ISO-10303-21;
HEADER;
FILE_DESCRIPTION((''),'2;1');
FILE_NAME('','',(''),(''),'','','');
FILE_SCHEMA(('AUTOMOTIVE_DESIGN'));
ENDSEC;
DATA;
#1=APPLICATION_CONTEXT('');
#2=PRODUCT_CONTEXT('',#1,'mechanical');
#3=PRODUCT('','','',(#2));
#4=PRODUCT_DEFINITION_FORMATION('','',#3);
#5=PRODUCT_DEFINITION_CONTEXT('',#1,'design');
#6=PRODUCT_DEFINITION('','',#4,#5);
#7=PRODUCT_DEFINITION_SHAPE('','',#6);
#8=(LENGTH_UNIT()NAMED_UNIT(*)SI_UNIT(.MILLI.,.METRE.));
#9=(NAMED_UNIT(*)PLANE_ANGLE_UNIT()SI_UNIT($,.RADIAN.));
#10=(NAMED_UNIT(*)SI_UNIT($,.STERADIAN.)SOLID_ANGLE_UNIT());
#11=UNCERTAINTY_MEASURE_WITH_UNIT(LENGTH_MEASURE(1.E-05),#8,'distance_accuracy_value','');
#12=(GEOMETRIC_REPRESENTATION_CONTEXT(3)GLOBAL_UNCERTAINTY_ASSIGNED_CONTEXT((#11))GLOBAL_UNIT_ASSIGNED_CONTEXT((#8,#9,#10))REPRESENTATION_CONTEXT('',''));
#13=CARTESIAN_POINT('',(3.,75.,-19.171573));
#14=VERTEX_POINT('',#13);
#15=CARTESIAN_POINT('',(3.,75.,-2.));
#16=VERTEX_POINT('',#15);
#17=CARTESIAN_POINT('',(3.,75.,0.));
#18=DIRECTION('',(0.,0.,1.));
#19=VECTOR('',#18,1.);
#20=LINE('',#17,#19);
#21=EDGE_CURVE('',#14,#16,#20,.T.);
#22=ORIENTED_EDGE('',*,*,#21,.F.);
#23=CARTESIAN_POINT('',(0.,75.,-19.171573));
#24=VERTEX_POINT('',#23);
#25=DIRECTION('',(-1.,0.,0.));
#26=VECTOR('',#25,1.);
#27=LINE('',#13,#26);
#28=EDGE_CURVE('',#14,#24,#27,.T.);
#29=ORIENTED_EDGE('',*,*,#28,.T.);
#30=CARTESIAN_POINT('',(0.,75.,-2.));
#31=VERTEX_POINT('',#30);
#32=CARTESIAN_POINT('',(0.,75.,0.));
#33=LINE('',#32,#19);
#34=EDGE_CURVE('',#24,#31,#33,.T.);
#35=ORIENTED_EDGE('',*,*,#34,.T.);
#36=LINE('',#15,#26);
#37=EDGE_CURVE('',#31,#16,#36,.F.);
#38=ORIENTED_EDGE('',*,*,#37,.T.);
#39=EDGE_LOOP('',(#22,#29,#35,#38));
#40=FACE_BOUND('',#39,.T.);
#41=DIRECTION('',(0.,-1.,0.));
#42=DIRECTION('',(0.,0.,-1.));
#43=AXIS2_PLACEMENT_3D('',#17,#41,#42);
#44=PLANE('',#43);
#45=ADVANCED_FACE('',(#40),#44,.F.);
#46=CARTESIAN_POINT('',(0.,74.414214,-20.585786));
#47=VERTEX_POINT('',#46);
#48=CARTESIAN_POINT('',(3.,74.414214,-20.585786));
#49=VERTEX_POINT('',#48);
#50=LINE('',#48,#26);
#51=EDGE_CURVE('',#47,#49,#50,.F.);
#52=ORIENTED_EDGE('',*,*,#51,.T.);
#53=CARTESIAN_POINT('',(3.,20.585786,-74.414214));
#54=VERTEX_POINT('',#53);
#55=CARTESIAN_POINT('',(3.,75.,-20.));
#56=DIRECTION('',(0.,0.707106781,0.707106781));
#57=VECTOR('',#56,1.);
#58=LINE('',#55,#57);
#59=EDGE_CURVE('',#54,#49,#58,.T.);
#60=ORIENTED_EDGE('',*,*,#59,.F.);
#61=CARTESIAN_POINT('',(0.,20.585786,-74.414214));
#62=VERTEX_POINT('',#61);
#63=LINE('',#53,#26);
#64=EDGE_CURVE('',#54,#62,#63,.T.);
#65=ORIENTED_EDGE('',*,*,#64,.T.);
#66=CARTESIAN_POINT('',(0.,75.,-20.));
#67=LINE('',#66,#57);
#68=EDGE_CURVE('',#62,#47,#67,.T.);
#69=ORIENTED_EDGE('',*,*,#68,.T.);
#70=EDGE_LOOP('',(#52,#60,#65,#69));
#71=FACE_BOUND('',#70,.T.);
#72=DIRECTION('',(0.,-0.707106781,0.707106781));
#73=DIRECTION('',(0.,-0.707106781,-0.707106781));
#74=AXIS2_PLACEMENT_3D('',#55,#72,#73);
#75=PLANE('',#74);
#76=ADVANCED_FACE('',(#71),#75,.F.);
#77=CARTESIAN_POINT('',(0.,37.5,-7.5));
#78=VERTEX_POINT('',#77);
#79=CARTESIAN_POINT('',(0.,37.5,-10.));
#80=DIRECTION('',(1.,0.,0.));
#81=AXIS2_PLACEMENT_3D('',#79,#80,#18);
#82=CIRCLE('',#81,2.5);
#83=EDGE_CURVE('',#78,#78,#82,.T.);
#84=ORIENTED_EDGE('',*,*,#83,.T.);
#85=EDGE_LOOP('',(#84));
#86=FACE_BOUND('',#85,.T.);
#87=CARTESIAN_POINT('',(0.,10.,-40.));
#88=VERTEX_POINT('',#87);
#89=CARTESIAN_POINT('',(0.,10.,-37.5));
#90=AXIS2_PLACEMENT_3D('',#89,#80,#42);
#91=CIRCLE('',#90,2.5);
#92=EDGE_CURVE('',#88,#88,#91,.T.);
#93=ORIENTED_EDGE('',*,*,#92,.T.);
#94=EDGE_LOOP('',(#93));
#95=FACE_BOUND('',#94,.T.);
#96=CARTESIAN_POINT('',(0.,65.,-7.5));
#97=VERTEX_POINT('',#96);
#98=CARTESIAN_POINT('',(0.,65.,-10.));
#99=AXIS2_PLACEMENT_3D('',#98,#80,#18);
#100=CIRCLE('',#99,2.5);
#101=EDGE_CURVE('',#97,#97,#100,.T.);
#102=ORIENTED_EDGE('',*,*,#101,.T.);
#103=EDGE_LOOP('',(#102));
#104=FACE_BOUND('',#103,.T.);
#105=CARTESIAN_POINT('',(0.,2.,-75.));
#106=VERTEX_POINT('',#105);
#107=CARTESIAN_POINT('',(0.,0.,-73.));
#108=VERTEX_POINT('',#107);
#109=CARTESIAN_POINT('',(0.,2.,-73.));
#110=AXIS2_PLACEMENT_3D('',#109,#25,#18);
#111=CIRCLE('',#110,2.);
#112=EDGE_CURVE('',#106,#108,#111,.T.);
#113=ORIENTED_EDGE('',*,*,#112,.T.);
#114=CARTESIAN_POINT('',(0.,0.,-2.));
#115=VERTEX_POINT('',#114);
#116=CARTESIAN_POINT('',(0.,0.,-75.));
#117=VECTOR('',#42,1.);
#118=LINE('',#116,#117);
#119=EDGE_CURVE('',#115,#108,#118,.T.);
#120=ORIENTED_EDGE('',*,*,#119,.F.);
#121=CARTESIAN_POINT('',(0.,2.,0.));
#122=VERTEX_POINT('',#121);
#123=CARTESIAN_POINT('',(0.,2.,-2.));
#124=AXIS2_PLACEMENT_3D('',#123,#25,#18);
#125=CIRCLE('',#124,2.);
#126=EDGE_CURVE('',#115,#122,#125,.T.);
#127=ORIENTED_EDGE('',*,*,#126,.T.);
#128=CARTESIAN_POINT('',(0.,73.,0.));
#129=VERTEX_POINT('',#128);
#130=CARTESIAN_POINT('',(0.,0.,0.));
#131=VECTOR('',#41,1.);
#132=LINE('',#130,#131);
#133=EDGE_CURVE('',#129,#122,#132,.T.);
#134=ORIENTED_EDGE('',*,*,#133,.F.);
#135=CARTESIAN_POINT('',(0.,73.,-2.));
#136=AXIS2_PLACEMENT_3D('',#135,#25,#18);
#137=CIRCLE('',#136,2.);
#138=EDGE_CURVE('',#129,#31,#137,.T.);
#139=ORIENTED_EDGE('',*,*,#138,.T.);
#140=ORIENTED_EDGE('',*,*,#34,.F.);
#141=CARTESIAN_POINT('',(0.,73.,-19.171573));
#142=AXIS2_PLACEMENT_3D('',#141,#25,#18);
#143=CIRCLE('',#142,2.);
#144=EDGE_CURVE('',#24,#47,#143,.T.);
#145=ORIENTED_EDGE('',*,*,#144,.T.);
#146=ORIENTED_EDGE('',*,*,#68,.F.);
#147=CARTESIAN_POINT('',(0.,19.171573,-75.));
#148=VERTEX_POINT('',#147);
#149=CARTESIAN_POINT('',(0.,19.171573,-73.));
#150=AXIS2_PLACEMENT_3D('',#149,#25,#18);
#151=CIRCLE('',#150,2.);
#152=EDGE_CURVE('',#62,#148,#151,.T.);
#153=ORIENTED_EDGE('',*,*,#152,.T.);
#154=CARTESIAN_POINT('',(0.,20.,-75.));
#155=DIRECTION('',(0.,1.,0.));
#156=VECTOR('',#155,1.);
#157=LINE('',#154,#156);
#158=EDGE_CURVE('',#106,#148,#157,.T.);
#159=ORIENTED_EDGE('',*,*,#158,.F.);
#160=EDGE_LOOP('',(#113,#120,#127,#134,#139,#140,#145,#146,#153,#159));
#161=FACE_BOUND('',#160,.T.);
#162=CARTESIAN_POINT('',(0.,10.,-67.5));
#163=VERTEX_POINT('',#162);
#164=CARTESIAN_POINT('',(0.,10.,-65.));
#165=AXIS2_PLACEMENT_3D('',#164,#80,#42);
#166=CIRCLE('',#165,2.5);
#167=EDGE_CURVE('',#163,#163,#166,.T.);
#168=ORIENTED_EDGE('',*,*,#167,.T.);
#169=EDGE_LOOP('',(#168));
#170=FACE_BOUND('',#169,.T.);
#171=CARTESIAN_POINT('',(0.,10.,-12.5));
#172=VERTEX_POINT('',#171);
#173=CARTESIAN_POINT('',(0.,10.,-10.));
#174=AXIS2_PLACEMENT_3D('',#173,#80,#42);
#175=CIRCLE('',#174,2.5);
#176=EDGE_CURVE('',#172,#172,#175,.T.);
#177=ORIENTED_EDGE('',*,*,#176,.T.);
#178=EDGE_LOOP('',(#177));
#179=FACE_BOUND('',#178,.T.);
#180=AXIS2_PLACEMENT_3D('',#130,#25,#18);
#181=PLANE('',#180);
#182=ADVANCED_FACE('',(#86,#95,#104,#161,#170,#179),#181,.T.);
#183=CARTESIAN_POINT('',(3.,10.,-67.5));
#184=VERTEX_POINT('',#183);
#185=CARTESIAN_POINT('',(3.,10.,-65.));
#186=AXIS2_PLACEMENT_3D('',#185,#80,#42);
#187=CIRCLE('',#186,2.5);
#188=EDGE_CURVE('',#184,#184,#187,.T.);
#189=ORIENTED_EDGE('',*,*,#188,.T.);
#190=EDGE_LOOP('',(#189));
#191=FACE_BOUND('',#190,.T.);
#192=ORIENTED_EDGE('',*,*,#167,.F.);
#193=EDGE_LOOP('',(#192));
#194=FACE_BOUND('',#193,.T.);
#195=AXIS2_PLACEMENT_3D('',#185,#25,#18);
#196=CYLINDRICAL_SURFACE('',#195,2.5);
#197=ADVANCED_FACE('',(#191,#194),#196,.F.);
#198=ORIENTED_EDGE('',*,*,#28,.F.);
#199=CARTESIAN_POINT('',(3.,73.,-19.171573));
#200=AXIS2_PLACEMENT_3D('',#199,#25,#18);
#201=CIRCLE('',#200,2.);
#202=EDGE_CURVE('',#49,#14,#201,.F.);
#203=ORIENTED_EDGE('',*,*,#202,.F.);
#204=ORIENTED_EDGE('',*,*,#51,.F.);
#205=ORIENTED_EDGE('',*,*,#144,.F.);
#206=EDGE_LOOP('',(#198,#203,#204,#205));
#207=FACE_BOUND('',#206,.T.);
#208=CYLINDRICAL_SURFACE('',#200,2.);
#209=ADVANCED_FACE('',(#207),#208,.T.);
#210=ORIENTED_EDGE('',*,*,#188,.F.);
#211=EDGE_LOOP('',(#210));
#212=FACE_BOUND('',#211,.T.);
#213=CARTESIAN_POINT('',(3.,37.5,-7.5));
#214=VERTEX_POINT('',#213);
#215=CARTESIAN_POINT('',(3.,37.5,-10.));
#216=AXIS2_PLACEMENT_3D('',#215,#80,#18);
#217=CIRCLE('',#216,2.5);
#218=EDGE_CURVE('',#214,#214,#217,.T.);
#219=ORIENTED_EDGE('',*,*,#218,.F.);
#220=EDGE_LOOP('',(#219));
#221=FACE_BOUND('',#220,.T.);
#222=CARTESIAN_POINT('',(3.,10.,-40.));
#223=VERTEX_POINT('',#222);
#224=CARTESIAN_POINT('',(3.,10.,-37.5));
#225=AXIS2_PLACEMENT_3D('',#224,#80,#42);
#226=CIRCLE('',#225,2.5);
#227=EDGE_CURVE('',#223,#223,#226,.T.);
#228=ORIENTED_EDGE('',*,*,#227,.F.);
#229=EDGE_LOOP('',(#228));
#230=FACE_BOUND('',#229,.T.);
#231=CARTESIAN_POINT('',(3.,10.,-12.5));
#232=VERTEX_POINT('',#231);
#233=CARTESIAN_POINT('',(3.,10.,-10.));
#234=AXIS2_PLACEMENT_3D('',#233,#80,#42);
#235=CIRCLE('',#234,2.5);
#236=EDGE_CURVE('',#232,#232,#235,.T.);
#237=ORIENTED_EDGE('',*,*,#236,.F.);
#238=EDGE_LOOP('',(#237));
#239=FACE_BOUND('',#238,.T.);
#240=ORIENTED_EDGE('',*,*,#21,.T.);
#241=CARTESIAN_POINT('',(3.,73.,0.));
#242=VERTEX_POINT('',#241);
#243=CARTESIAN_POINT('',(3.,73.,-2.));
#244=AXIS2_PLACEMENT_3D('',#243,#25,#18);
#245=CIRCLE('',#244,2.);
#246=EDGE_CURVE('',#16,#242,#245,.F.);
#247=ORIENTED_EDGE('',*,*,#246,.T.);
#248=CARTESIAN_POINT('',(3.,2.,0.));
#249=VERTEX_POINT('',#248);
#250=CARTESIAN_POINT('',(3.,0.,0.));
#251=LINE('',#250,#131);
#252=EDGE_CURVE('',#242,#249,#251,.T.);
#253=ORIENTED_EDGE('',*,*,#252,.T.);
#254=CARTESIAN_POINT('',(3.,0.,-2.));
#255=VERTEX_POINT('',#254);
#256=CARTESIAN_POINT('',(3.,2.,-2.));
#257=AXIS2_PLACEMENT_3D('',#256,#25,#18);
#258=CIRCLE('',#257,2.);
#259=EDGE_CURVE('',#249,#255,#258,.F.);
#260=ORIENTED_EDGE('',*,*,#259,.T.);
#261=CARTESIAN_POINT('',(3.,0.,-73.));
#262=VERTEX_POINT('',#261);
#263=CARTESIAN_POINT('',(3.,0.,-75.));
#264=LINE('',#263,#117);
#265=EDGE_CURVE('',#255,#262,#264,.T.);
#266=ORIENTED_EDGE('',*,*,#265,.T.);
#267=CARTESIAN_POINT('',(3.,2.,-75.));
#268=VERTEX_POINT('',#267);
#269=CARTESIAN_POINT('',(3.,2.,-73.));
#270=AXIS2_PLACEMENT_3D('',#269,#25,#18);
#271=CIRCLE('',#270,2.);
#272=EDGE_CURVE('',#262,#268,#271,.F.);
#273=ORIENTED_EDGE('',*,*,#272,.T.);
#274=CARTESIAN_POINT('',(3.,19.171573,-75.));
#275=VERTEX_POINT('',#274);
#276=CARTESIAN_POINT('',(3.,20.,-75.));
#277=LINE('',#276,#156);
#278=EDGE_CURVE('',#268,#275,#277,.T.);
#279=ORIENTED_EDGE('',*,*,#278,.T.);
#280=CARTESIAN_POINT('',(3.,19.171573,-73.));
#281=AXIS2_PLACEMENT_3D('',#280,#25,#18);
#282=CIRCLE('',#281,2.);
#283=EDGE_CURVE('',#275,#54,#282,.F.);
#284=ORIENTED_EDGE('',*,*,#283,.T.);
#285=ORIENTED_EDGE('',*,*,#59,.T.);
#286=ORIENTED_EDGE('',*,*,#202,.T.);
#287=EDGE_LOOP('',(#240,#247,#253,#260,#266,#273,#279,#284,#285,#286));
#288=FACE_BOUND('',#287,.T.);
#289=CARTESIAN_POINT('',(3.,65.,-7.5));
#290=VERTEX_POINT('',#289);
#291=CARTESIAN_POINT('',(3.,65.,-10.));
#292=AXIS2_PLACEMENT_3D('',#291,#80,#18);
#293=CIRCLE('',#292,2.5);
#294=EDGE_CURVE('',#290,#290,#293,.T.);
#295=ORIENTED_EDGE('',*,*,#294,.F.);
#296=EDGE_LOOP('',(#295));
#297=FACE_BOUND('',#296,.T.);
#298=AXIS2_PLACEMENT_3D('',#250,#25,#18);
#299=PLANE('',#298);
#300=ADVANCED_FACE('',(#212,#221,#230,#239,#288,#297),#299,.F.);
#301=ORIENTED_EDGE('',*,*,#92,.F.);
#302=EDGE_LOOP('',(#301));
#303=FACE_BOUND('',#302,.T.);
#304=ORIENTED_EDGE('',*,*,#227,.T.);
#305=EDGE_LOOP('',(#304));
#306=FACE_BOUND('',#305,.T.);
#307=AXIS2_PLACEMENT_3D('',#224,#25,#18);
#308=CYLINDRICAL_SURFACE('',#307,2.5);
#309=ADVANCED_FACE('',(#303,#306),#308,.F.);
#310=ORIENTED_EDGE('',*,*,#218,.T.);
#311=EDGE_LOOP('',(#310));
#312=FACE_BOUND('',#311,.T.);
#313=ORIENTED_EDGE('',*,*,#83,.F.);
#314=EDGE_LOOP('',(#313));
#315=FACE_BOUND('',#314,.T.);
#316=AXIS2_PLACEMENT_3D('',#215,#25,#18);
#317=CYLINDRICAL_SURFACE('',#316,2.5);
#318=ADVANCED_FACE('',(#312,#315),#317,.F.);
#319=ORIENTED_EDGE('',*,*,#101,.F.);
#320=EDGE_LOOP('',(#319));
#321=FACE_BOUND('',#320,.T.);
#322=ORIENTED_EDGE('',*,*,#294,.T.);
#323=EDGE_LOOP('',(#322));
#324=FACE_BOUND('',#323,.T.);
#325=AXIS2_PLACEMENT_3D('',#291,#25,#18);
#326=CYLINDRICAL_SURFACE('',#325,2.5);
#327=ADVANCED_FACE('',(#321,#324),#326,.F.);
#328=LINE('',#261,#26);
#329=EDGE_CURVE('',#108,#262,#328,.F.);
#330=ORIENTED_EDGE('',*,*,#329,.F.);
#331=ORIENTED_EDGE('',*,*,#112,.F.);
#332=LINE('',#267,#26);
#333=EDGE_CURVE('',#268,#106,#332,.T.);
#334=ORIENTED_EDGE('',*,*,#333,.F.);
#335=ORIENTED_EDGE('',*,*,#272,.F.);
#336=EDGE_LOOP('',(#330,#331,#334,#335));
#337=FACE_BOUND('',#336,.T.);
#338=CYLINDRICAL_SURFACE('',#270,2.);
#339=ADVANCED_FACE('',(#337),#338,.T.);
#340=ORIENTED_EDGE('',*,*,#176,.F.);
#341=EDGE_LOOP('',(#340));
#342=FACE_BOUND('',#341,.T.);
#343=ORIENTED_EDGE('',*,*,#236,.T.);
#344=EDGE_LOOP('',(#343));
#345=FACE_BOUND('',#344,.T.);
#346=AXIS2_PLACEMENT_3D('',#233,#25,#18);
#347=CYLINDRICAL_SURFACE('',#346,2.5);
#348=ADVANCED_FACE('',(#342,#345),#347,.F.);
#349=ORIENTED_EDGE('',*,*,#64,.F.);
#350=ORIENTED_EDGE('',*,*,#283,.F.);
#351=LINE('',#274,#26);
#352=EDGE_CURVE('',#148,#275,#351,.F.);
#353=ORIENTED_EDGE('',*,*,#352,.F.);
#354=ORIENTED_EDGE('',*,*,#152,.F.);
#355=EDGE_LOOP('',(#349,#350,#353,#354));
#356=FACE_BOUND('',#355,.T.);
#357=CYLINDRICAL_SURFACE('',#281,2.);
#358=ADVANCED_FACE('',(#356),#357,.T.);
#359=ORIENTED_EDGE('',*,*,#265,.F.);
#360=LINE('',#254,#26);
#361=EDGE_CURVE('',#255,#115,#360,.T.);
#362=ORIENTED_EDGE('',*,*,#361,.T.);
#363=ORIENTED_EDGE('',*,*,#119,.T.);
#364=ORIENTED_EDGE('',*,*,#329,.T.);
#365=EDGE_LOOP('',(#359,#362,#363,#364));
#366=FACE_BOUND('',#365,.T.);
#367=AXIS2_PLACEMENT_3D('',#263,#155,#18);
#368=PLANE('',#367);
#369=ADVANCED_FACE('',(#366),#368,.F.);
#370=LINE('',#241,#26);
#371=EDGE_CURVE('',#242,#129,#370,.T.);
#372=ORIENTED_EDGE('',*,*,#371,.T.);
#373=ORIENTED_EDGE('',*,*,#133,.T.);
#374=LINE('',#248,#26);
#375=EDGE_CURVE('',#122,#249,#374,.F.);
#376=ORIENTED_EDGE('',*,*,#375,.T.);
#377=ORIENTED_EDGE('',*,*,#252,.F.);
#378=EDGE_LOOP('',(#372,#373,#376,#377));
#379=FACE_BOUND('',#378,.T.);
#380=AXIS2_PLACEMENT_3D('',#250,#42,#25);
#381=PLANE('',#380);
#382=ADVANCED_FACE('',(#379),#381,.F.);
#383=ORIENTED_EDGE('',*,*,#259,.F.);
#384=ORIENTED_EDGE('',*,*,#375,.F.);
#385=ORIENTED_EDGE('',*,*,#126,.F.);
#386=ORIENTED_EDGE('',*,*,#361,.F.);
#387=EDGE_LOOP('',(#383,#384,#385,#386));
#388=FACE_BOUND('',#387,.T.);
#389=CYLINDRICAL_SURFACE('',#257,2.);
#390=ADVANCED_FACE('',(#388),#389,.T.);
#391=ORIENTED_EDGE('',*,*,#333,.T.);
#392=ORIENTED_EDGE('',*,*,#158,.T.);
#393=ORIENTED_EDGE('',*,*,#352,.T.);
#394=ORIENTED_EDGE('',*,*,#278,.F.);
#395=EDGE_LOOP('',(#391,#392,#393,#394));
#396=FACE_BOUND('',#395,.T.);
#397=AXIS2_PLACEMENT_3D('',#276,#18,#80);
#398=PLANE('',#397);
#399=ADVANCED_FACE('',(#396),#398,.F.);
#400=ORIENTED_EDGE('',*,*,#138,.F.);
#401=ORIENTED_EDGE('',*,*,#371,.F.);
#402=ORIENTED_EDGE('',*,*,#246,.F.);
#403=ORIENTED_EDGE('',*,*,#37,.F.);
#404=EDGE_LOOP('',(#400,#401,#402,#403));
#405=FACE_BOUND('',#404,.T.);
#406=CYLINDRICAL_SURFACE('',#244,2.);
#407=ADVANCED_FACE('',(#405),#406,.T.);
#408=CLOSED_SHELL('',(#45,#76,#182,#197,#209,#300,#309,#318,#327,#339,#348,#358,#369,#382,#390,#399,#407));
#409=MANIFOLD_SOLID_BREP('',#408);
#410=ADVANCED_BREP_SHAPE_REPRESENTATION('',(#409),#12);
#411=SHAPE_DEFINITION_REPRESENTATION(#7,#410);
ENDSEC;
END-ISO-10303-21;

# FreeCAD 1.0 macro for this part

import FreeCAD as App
import Part
import Sketcher
Q = App.Units.Quantity


def edges_at(feature, points):
    """Names of the edges that pass closest to the given points."""
    edges = feature.Shape.Edges
    near = lambda p: min(range(len(edges)), key=lambda i: edges[i].distToShape(Part.Vertex(*p))[0])
    return sorted({f"Edge{near(p) + 1}" for p in points})


def add_polygon(sketch, points):
    """Adds a closed chain of lines whose ends are joined by coincident constraints."""
    first, n = sketch.GeometryCount, len(points)
    for a, b in zip(points, points[1:] + points[:1]):
        sketch.addGeometry(Part.LineSegment(App.Vector(*a, 0), App.Vector(*b, 0)), False)
    for i in range(n):
        sketch.addConstraint(Sketcher.Constraint("Coincident", first + i, 2, first + (i + 1) % n, 1))

doc = App.newDocument("Part")
body = doc.addObject("PartDesign::Body", "Body")

sketch1 = doc.addObject("Sketcher::SketchObject", "Sketch")
body.addObject(sketch1)
sketch1.AttachmentSupport = (doc.YZ_Plane, [""])
sketch1.MapMode = "FlatFace"
add_polygon(sketch1, [(0, 0), (0, -75), (20, -75), (75, -20), (75, 0)])
sketch1.addGeometry(Part.Circle(App.Vector(10, -65, 0), App.Vector(0, 0, 1), 2.5), False)
sketch1.addGeometry(Part.Circle(App.Vector(10, -37.5, 0), App.Vector(0, 0, 1), 2.5), False)
sketch1.addGeometry(Part.Circle(App.Vector(10, -10, 0), App.Vector(0, 0, 1), 2.5), False)
sketch1.addGeometry(Part.Circle(App.Vector(37.5, -10, 0), App.Vector(0, 0, 1), 2.5), False)
sketch1.addGeometry(Part.Circle(App.Vector(65, -10, 0), App.Vector(0, 0, 1), 2.5), False)
sketch1.addConstraint([
    Sketcher.Constraint("Vertical", 0),
    Sketcher.Constraint("Horizontal", 1),
    Sketcher.Constraint("Vertical", 3),
    Sketcher.Constraint("Horizontal", 4),
    Sketcher.Constraint("Coincident", 4, 2, -1, 1),
    Sketcher.Constraint("Equal", 5, 6),
    Sketcher.Constraint("Equal", 6, 7),
    Sketcher.Constraint("Equal", 7, 8),
    Sketcher.Constraint("Equal", 8, 9),
    Sketcher.Constraint("Horizontal", 7, 3, 8, 3),
    Sketcher.Constraint("Horizontal", 8, 3, 9, 3),
    Sketcher.Constraint("Vertical", 5, 3, 6, 3),
    Sketcher.Constraint("Vertical", 6, 3, 7, 3),
    Sketcher.Constraint("Equal", 4, 0),
    Sketcher.Constraint("Equal", 1, 3),
    Sketcher.Constraint("Diameter", 5, Q("5 mm")),
    Sketcher.Constraint("DistanceX", 1, 1, 1, 2, Q("20 mm")),
    Sketcher.Constraint("DistanceX", 4, 2, 4, 1, Q("75 mm")),
    Sketcher.Constraint("DistanceX", -1, 1, 5, 3, Q("10 mm")),
    Sketcher.Constraint("DistanceY", 5, 3, -1, 1, Q("65 mm")),
    Sketcher.Constraint("DistanceY", 7, 3, -1, 1, Q("10 mm")),
    Sketcher.Constraint("DistanceX", -1, 1, 9, 3, Q("65 mm")),
    Sketcher.Constraint("DistanceY", 6, 3, -1, 1, Q("37.5 mm")),
    Sketcher.Constraint("DistanceX", -1, 1, 8, 3, Q("37.5 mm")),
])
pad1 = doc.addObject("PartDesign::Pad", "Pad")
body.addObject(pad1)
pad1.Profile = sketch1
pad1.Length = 3
doc.recompute()

fillet = doc.addObject("PartDesign::Fillet", "Fillet")
body.addObject(fillet)
fillet.Base = (pad1, edges_at(pad1, [
    (1.5, 0, -75),
    (1.5, 0, 0),
    (1.5, 75, 0),
    (1.5, 75, -20),
    (1.5, 20, -75),
]))
fillet.Radius = 2

doc.recompute()
